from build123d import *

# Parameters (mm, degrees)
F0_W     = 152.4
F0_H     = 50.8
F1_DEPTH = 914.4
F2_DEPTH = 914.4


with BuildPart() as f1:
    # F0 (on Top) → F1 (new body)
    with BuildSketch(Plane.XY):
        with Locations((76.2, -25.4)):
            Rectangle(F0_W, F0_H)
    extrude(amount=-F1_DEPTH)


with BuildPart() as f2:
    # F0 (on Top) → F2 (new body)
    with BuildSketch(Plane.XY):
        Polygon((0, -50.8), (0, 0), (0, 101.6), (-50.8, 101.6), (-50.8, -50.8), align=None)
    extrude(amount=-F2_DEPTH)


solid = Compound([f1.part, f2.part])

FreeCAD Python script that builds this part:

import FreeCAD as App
import Part
import Sketcher

V = App.Vector
Q = App.Units.Quantity


def add_polygon(sketch, points):
    """Adds a closed chain of lines whose ends are joined by coincident constraints."""
    first, n = sketch.GeometryCount, len(points)
    for a, b in zip(points, points[1:] + points[:1]):
        sketch.addGeometry(Part.LineSegment(App.Vector(*a, 0), App.Vector(*b, 0)), False)
    for i in range(n):
        sketch.addConstraint(Sketcher.Constraint("Coincident", first + i, 2, first + (i + 1) % n, 1))

doc = App.newDocument("Part")
body = doc.addObject("PartDesign::Body", "Body")

sketch1 = body.newObject("Sketcher::SketchObject", "Sketch")
sketch1.AttachmentSupport = (doc.getObject("XY_Plane"), [""])
sketch1.MapMode = "FlatFace"
add_polygon(sketch1, [(0, 0), (0, -51), (152, -51), (152, 0)])
sketch1.addConstraint(Sketcher.Constraint("Vertical", 0))
sketch1.addConstraint(Sketcher.Constraint("Horizontal", 1))
sketch1.addConstraint(Sketcher.Constraint("Vertical", 2))
sketch1.addConstraint(Sketcher.Constraint("Horizontal", 3))
sketch1.addConstraint(Sketcher.Constraint("Coincident", 3, 2, -1, 1))
sketch1.addConstraint(Sketcher.Constraint("DistanceX", 1, 1, 1, 2, Q("6 in")))
sketch1.addConstraint(Sketcher.Constraint("DistanceY", 0, 2, 0, 1, Q("2 in")))
pad1 = body.newObject("PartDesign::Pad", "Pad")
pad1.Profile = sketch1
pad1.Length = Q("36 in")
pad1.Reversed = True
body2 = doc.addObject("PartDesign::Body", "Body001")

sketch2 = body2.newObject("Sketcher::SketchObject", "Sketch001")
sketch2.AttachmentSupport = (doc.getObject("XY_Plane001"), [""])
sketch2.MapMode = "FlatFace"
add_polygon(sketch2, [(0, -51), (0, 102), (-51, 102), (-51, -51)])
sketch2.addConstraint(Sketcher.Constraint("Vertical", 0))
sketch2.addConstraint(Sketcher.Constraint("Horizontal", 1))
sketch2.addConstraint(Sketcher.Constraint("Vertical", 2))
sketch2.addConstraint(Sketcher.Constraint("Horizontal", 3))
sketch2.addConstraint(Sketcher.Constraint("PointOnObject", 0, 2, -2))
sketch2.addConstraint(Sketcher.Constraint("DistanceX", 1, 2, 1, 1, Q("2 in")))
sketch2.addConstraint(Sketcher.Constraint("DistanceY", 0, 1, 0, 2, Q("6 in")))
sketch2.addConstraint(Sketcher.Constraint("DistanceY", -1, 1, 0, 2, Q("4 in")))
pad2 = body2.newObject("PartDesign::Pad", "Pad001")
pad2.Profile = sketch2
pad2.Length = Q("36 in")
pad2.Reversed = True

doc.recompute()
